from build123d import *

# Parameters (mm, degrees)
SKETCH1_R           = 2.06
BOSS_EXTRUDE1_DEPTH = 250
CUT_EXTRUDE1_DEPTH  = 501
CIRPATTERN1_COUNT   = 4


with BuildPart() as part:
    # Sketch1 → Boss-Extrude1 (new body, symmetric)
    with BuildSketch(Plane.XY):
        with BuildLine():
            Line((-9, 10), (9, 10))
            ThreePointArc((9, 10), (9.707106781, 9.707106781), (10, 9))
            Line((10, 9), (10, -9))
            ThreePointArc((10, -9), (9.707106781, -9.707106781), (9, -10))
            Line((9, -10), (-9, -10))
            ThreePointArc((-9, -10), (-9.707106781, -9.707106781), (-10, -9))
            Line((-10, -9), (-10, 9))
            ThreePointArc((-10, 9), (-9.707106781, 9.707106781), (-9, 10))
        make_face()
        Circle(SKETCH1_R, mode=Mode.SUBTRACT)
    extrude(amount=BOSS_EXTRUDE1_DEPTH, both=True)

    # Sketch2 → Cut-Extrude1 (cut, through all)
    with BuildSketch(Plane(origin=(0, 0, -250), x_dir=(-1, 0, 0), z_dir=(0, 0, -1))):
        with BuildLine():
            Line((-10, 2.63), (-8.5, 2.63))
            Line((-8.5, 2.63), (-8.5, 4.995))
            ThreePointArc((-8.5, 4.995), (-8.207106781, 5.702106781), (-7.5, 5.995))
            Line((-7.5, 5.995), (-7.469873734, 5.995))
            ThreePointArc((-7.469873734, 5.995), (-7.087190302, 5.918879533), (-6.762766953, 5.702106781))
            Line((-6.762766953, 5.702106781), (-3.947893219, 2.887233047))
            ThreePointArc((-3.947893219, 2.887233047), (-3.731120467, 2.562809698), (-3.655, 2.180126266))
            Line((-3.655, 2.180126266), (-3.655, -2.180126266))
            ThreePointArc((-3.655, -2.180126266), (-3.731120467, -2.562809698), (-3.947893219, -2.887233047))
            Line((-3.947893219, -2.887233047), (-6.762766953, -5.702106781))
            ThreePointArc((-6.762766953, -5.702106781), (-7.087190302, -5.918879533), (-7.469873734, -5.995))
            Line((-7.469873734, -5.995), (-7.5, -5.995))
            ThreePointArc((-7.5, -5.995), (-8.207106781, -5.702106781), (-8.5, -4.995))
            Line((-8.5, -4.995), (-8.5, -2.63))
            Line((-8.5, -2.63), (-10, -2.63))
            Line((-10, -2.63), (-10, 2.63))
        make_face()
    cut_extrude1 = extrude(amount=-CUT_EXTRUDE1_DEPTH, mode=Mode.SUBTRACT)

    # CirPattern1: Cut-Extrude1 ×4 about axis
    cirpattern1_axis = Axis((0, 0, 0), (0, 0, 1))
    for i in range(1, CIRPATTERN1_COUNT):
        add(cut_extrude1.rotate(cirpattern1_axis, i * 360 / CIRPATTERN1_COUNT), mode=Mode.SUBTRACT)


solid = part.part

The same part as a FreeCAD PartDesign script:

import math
import FreeCAD as App
import Part
import Sketcher

V = App.Vector
Q = App.Units.Quantity

doc = App.newDocument("Part")
body = doc.addObject("PartDesign::Body", "Body")

# Sketch on XY plane
sketch1 = doc.addObject("Sketcher::SketchObject", "Sketch")
body.addObject(sketch1)
sketch1.AttachmentSupport = (doc.XY_Plane, [""])
sketch1.MapMode = "FlatFace"
sketch1.addGeometry([
    Part.LineSegment(V(9, 10, 0), V(-9, 10, 0)),  # 0
    Part.ArcOfCircle(Part.Circle(V(-9, 9, 0), V(0, 0, 1), 1), math.radians(90), math.radians(180)),  # 1
    Part.LineSegment(V(-10, 9, 0), V(-10, -9, 0)),  # 2
    Part.ArcOfCircle(Part.Circle(V(-9, -9, 0), V(0, 0, 1), 1), math.radians(-180), math.radians(-90)),  # 3
    Part.LineSegment(V(-9, -10, 0), V(9, -10, 0)),  # 4
    Part.ArcOfCircle(Part.Circle(V(9, -9, 0), V(0, 0, 1), 1), math.radians(-90), math.radians(0)),  # 5
    Part.LineSegment(V(10, -9, 0), V(10, 9, 0)),  # 6
    Part.ArcOfCircle(Part.Circle(V(9, 9, 0), V(0, 0, 1), 1), math.radians(0), math.radians(90)),  # 7
    Part.Circle(V(0, 0, 0), V(0, 0, 1), 2.06),  # 8
], False)
sketch1.addConstraint([
    Sketcher.Constraint("Tangent", 0, 2, 1, 1),
    Sketcher.Constraint("Tangent", 1, 2, 2, 1),
    Sketcher.Constraint("Tangent", 2, 2, 3, 1),
    Sketcher.Constraint("Tangent", 3, 2, 4, 1),
    Sketcher.Constraint("Tangent", 4, 2, 5, 1),
    Sketcher.Constraint("Tangent", 5, 2, 6, 1),
    Sketcher.Constraint("Tangent", 6, 2, 7, 1),
    Sketcher.Constraint("Tangent", 7, 2, 0, 1),
    Sketcher.Constraint("Horizontal", 0),
    Sketcher.Constraint("Vertical", 2),
    Sketcher.Constraint("Horizontal", 4),
    Sketcher.Constraint("Vertical", 6),
    Sketcher.Constraint("Coincident", 8, 3, -1, 1),
    Sketcher.Constraint("Equal", 1, 3),
    Sketcher.Constraint("Equal", 3, 5),
    Sketcher.Constraint("Equal", 5, 7),
    Sketcher.Constraint("Symmetric", 1, 3, 5, 3, -1, 1),
    Sketcher.Constraint("Equal", 4, 2),
    Sketcher.Constraint("Radius", 1, Q("1 mm")),
    Sketcher.Constraint("Diameter", 8, Q("4.12 mm")),
    Sketcher.Constraint("DistanceX", 0, 2, 0, 1, Q("18 mm")),
])
pad1 = doc.addObject("PartDesign::Pad", "Pad")
body.addObject(pad1)
pad1.Profile = sketch1
pad1.Length = 500
pad1.Midplane = True

# Sketch on XY plane
sketch2 = doc.addObject("Sketcher::SketchObject", "Sketch001")
body.addObject(sketch2)
sketch2.AttachmentSupport = (doc.XY_Plane, [""])
sketch2.MapMode = "FlatFace"
sketch2.AttachmentOffset = App.Placement(V(0, 0, -250), App.Rotation())
sketch2.addGeometry([
    Part.LineSegment(V(8.5, 2.63, 0), V(10, 2.63, 0)),  # 0
    Part.LineSegment(V(10, 2.63, 0), V(10, -2.63, 0)),  # 1
    Part.LineSegment(V(10, -2.63, 0), V(8.5, -2.63, 0)),  # 2
    Part.LineSegment(V(8.5, -2.63, 0), V(8.5, -4.995, 0)),  # 3
    Part.ArcOfCircle(Part.Circle(V(7.5, -4.995, 0), V(0, 0, 1), 1), math.radians(-90), math.radians(0)),  # 4
    Part.LineSegment(V(7.5, -5.995, 0), V(7.469874, -5.995, 0)),  # 5
    Part.ArcOfCircle(Part.Circle(V(7.469874, -4.995, 0), V(0, 0, 1), 1), math.radians(-135), math.radians(-90)),  # 6
    Part.LineSegment(V(6.762767, -5.702107, 0), V(3.947893, -2.887233, 0)),  # 7
    Part.ArcOfCircle(Part.Circle(V(4.655, -2.180126, 0), V(0, 0, 1), 1), math.radians(180), math.radians(225)),  # 8
    Part.LineSegment(V(3.655, -2.180126, 0), V(3.655, 2.180126, 0)),  # 9
    Part.ArcOfCircle(Part.Circle(V(4.655, 2.180126, 0), V(0, 0, 1), 1), math.radians(135), math.radians(180)),  # 10
    Part.LineSegment(V(3.947893, 2.887233, 0), V(6.762767, 5.702107, 0)),  # 11
    Part.ArcOfCircle(Part.Circle(V(7.469874, 4.995, 0), V(0, 0, 1), 1), math.radians(90), math.radians(135)),  # 12
    Part.LineSegment(V(7.469874, 5.995, 0), V(7.5, 5.995, 0)),  # 13
    Part.ArcOfCircle(Part.Circle(V(7.5, 4.995, 0), V(0, 0, 1), 1), math.radians(0), math.radians(90)),  # 14
    Part.LineSegment(V(8.5, 4.995, 0), V(8.5, 2.63, 0)),  # 15
], False)
sketch2.addConstraint([
    Sketcher.Constraint("Coincident", 0, 2, 1, 1),
    Sketcher.Constraint("Coincident", 1, 2, 2, 1),
    Sketcher.Constraint("Coincident", 2, 2, 3, 1),
    Sketcher.Constraint("Tangent", 3, 2, 4, 2),
    Sketcher.Constraint("Tangent", 4, 1, 5, 1),
    Sketcher.Constraint("Tangent", 5, 2, 6, 2),
    Sketcher.Constraint("Tangent", 6, 1, 7, 1),
    Sketcher.Constraint("Tangent", 7, 2, 8, 2),
    Sketcher.Constraint("Tangent", 8, 1, 9, 1),
    Sketcher.Constraint("Tangent", 9, 2, 10, 2),
    Sketcher.Constraint("Tangent", 10, 1, 11, 1),
    Sketcher.Constraint("Tangent", 11, 2, 12, 2),
    Sketcher.Constraint("Tangent", 12, 1, 13, 1),
    Sketcher.Constraint("Tangent", 13, 2, 14, 2),
    Sketcher.Constraint("Tangent", 14, 1, 15, 1),
    Sketcher.Constraint("Coincident", 15, 2, 0, 1),
    Sketcher.Constraint("Horizontal", 0),
    Sketcher.Constraint("Vertical", 1),
    Sketcher.Constraint("Horizontal", 2),
    Sketcher.Constraint("Vertical", 3),
    Sketcher.Constraint("Horizontal", 5),
    Sketcher.Constraint("Vertical", 9),
    Sketcher.Constraint("Horizontal", 13),
    Sketcher.Constraint("Vertical", 15),
    Sketcher.Constraint("Equal", 4, 6),
    Sketcher.Constraint("Equal", 6, 8),
    Sketcher.Constraint("Equal", 8, 10),
    Sketcher.Constraint("Equal", 10, 12),
    Sketcher.Constraint("Equal", 12, 14),
    Sketcher.Constraint("Symmetric", 6, 3, 12, 3, -1),
    Sketcher.Constraint("Symmetric", 2, 2, 15, 2, -1),
    Sketcher.Constraint("Perpendicular", 7, 11),
    Sketcher.Constraint("Vertical", 7, 2, 10, 1),
    Sketcher.Constraint("Radius", 4, Q("1 mm")),
    Sketcher.Constraint("DistanceX", 0, 1, 0, 2, Q("1.5 mm")),
    Sketcher.Constraint("DistanceX", -1, 1, 0, 2, Q("10 mm")),
    Sketcher.Constraint("DistanceY", 1, 2, 1, 1, Q("5.26 mm")),
    Sketcher.Constraint("DistanceY", 3, 2, 3, 1, Q("2.365 mm")),
    Sketcher.Constraint("DistanceX", -1, 1, 8, 3, Q("4.655 mm")),
    Sketcher.Constraint("DistanceX", 5, 2, 5, 1, Q("0.030126 mm")),
])
pocket1 = doc.addObject("PartDesign::Pocket", "Pocket")
body.addObject(pocket1)
pocket1.Profile = sketch2
pocket1.Type = "ThroughAll"
pocket1.Reversed = True
doc.recompute()

polarpattern = doc.addObject("PartDesign::PolarPattern", "PolarPattern")
body.addObject(polarpattern)
polarpattern.Originals = [pocket1]
polarpattern.Axis = (doc.Z_Axis, [""])
polarpattern.Angle = 360
polarpattern.Occurrences = 4
body.Tip = polarpattern

doc.recompute()
